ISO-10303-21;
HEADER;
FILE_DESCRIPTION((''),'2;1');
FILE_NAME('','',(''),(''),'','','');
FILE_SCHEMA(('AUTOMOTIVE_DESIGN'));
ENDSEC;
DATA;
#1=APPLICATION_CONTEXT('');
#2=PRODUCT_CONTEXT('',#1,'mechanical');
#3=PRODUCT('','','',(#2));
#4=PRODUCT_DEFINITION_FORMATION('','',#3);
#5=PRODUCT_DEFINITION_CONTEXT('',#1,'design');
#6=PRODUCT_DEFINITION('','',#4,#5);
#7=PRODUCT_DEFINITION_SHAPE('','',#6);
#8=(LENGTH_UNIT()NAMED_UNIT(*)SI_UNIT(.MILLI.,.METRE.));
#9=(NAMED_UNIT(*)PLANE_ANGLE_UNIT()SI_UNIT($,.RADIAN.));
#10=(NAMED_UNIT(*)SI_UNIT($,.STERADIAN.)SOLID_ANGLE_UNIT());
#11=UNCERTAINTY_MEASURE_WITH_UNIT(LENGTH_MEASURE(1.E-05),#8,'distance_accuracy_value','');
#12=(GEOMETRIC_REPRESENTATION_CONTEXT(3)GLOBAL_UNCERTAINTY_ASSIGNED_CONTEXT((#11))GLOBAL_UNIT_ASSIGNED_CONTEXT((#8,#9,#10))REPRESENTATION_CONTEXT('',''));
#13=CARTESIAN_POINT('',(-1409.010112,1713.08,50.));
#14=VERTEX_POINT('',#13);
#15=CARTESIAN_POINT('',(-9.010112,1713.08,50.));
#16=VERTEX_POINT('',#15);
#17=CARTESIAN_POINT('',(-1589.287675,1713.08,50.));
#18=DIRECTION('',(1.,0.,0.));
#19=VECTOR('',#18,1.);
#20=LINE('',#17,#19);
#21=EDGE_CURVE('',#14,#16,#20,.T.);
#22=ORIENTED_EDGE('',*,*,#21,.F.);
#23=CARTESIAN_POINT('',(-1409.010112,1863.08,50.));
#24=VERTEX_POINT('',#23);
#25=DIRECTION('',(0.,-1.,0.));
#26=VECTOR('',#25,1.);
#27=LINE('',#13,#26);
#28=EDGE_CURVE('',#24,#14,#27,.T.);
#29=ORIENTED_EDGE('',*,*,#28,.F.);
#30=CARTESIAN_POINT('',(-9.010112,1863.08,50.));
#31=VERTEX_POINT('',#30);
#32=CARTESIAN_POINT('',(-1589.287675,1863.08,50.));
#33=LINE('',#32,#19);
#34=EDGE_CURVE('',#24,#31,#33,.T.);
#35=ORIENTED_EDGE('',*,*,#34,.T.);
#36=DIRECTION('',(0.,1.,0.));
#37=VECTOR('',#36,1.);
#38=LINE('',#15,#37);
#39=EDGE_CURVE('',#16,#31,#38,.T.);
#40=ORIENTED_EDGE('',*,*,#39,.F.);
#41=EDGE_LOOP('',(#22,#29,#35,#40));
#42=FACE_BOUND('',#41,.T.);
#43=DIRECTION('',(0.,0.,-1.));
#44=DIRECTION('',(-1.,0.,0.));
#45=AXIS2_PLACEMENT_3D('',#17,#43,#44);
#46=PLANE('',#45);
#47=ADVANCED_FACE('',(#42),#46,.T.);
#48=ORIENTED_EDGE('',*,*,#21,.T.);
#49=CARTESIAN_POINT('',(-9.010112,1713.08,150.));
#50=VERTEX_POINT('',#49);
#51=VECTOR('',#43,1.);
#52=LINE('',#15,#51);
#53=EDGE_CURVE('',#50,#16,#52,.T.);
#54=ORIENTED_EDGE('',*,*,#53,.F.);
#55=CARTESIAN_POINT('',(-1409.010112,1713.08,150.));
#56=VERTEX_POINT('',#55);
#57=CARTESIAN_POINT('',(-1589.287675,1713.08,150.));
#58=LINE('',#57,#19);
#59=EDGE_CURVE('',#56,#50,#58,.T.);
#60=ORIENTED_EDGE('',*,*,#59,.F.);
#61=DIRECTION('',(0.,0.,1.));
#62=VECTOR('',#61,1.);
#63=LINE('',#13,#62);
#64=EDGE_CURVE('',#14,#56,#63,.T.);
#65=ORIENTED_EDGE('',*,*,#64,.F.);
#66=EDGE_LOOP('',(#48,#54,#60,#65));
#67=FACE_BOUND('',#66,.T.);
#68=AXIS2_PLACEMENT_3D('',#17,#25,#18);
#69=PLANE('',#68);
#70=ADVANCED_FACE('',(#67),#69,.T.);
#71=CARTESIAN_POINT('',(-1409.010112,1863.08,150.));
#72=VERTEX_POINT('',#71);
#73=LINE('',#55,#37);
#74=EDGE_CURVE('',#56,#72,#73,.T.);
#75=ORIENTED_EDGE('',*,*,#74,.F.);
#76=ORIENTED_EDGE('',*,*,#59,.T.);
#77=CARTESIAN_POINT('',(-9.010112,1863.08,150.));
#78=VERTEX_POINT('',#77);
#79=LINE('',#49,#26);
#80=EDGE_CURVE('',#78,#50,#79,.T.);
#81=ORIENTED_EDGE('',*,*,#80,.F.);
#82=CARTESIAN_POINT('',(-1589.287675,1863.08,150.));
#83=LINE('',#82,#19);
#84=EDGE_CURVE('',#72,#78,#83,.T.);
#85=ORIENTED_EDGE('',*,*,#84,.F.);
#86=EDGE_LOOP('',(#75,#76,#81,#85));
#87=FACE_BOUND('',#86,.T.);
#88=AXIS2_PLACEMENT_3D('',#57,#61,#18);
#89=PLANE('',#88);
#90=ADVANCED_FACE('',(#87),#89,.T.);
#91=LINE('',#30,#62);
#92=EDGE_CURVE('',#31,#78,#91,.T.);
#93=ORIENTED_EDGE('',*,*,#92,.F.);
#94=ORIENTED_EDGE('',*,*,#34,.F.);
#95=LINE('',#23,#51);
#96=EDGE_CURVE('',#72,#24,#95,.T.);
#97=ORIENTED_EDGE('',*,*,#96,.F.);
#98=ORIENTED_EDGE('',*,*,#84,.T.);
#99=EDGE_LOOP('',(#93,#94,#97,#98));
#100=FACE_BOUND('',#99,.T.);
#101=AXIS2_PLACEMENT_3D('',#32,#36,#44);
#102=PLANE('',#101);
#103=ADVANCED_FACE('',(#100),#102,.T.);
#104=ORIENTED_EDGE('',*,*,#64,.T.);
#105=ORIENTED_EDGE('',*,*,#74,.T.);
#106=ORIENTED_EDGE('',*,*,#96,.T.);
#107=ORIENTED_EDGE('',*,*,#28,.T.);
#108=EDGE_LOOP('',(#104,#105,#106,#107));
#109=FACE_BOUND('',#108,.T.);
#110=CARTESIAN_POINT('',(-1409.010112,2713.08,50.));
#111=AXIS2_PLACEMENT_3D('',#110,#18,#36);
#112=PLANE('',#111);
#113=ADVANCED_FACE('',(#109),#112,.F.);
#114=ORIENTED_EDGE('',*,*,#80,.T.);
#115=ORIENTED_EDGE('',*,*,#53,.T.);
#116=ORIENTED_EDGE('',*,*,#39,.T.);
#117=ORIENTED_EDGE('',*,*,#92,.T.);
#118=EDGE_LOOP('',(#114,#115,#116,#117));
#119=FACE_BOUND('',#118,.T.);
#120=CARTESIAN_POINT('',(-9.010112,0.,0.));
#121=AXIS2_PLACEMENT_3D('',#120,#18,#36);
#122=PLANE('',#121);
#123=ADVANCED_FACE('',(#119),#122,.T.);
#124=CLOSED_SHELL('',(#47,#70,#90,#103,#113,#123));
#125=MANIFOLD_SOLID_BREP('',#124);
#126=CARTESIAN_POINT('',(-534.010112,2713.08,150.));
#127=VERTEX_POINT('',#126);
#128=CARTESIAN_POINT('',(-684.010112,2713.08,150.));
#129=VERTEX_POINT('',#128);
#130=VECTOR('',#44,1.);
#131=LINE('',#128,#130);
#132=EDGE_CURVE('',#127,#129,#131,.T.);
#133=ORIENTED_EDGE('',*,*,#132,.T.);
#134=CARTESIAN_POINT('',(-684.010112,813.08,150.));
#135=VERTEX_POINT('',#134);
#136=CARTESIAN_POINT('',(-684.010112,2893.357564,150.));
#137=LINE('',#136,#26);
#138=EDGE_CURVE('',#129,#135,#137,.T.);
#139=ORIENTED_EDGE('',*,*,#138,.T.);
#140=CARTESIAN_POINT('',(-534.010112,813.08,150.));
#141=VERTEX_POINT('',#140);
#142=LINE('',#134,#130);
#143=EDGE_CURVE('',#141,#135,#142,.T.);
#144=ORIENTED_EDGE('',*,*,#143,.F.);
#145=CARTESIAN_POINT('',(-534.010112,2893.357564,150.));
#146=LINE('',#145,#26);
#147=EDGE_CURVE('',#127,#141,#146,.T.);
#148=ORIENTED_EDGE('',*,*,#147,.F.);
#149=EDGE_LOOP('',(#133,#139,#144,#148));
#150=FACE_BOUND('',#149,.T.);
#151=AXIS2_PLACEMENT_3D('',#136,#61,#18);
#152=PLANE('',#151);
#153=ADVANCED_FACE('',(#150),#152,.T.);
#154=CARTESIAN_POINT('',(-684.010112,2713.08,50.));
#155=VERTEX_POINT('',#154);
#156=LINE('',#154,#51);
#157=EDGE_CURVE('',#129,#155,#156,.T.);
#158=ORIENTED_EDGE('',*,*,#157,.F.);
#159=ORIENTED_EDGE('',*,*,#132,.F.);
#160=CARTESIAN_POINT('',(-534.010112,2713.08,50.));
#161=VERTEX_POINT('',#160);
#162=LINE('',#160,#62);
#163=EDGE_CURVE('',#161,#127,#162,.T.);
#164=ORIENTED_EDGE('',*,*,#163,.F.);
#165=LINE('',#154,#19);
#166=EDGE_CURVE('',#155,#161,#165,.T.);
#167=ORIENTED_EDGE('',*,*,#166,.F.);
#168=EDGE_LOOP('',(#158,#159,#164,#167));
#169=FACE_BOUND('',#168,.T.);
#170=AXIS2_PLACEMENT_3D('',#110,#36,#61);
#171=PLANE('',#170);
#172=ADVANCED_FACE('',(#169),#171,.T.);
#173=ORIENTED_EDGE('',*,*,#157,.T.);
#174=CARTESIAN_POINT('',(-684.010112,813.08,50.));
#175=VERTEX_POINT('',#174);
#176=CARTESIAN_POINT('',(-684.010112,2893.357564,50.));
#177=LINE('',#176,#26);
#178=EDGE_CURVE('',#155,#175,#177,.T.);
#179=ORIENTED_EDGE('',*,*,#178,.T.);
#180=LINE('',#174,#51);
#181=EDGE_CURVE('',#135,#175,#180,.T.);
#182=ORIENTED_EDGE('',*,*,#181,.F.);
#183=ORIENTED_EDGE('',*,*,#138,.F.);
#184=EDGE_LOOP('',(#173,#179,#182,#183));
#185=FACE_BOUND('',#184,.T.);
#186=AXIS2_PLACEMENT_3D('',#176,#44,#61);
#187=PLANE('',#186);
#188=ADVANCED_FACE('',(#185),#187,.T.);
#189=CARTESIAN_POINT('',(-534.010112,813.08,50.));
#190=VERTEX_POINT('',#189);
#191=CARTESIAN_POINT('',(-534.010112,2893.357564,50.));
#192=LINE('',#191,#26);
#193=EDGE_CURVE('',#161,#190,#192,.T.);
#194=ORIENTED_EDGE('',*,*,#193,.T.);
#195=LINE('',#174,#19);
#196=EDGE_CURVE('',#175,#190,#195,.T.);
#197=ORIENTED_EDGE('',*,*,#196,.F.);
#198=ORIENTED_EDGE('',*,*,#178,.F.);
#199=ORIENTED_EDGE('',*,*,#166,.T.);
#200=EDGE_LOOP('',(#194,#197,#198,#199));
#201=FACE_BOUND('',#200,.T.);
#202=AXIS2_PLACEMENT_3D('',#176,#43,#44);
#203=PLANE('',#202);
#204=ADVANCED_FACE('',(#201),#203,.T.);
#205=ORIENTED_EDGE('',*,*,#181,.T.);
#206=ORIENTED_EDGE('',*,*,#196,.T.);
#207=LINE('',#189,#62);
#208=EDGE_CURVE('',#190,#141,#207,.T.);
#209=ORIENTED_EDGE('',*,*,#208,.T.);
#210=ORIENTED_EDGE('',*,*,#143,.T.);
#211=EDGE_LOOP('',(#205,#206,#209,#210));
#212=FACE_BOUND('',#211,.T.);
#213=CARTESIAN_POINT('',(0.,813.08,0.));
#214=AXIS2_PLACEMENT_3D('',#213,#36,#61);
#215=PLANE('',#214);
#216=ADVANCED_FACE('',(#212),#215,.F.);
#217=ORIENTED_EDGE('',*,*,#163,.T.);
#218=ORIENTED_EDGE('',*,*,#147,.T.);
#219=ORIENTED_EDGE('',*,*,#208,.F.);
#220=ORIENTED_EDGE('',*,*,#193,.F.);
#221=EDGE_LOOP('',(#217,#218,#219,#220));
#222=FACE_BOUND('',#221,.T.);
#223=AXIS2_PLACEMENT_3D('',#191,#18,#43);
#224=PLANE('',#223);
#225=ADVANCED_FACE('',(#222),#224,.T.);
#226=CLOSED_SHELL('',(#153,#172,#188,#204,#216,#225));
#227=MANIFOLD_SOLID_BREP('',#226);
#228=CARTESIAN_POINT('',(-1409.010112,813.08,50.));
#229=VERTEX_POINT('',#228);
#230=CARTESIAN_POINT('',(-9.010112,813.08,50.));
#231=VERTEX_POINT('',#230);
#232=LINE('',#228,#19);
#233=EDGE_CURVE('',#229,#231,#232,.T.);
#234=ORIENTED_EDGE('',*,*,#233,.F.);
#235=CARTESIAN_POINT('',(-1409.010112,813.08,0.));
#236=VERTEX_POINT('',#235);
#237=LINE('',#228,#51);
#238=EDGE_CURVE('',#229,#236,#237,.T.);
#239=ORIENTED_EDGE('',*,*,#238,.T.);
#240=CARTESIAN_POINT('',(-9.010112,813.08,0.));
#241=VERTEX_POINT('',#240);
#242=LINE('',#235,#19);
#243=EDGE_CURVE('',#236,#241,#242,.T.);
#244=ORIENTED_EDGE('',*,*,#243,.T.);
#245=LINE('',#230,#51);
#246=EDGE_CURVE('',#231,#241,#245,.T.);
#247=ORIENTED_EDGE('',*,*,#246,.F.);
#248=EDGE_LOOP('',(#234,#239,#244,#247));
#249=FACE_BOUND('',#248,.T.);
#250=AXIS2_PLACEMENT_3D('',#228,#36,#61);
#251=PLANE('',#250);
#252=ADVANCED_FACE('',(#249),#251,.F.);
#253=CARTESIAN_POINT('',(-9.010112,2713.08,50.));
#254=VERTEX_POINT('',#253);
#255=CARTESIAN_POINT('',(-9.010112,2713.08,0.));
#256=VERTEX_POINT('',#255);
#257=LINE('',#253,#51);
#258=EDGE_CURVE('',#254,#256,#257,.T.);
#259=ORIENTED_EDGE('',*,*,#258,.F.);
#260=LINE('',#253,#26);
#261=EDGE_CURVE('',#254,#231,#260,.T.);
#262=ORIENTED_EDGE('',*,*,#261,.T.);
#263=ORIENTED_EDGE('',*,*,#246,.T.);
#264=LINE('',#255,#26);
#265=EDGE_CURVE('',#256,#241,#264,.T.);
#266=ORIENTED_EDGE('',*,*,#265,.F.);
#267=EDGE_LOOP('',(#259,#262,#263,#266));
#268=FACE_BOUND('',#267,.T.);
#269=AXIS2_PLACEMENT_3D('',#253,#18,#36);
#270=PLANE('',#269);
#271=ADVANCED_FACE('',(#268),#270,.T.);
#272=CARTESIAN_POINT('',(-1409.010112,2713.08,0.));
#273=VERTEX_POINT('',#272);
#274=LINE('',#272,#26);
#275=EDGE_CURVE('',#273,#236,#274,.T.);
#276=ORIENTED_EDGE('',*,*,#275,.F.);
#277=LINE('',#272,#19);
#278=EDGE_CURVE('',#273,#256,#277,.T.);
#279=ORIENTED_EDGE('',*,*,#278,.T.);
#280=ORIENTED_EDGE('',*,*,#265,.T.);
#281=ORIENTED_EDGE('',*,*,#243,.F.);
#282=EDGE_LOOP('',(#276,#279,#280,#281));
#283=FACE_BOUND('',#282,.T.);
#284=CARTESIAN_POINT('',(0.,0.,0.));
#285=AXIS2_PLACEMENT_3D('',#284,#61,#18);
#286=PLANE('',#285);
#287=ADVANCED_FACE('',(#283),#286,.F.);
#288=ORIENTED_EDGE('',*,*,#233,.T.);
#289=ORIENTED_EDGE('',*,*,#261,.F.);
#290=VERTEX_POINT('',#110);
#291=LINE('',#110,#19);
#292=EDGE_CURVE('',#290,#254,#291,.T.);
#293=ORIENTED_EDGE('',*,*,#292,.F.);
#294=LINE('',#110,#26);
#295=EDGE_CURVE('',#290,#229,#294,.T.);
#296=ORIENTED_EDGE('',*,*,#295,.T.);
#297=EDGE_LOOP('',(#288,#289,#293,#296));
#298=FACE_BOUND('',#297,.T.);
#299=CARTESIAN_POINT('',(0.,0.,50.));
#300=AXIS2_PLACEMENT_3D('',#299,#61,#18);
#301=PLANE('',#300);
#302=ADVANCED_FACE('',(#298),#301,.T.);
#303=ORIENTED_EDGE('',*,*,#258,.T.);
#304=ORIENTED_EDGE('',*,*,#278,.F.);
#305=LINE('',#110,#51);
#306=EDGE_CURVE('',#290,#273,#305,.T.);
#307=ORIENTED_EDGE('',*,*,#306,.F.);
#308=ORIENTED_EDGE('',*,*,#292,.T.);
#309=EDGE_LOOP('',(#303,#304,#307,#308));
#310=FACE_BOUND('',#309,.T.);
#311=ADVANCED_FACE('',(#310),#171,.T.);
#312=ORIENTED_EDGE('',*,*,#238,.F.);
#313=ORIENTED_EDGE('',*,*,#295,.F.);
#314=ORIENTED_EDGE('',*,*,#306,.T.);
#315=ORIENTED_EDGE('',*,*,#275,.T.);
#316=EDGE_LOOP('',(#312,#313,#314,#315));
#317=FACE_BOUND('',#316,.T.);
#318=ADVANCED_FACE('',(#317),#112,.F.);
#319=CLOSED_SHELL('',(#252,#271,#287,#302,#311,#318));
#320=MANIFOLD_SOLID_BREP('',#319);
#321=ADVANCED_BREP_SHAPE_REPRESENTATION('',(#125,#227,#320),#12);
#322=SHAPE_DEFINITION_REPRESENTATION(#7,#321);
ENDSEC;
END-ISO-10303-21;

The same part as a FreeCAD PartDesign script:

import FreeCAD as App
import Part
import Sketcher
Q = App.Units.Quantity

doc = App.newDocument("Part")
body = doc.addObject("PartDesign::Body", "Body")

# Sketch on XY plane
sketch1 = body.newObject("Sketcher::SketchObject", "Sketch")
sketch1.AttachmentSupport = (doc.getObject("XY_Plane"), [""])
sketch1.MapMode = "FlatFace"
sketch1.addGeometry(Part.LineSegment(App.Vector(-1409, 2713, 0), App.Vector(-1409, 813, 0)), False)
sketch1.addGeometry(Part.LineSegment(App.Vector(-1409, 813, 0), App.Vector(-9, 813, 0)), False)
sketch1.addGeometry(Part.LineSegment(App.Vector(-9, 813, 0), App.Vector(-9, 2713, 0)), False)
sketch1.addGeometry(Part.LineSegment(App.Vector(-9, 2713, 0), App.Vector(-1409, 2713, 0)), False)
sketch1.addConstraint(Sketcher.Constraint("Coincident", 0, 2, 1, 1))
sketch1.addConstraint(Sketcher.Constraint("Coincident", 1, 2, 2, 1))
sketch1.addConstraint(Sketcher.Constraint("Coincident", 2, 2, 3, 1))
sketch1.addConstraint(Sketcher.Constraint("Coincident", 3, 2, 0, 1))
sketch1.addConstraint(Sketcher.Constraint("Vertical", 0))
sketch1.addConstraint(Sketcher.Constraint("Horizontal", 1))
sketch1.addConstraint(Sketcher.Constraint("Vertical", 2))
sketch1.addConstraint(Sketcher.Constraint("Horizontal", 3))
sketch1.addConstraint(Sketcher.Constraint("DistanceX", 1, 1, 1, 2, Q("1400 mm")))
sketch1.addConstraint(Sketcher.Constraint("DistanceY", 0, 2, 0, 1, Q("1900 mm")))
sketch1.addConstraint(Sketcher.Constraint("DistanceY", -1, 1, 0, 2, Q("813.08 mm")))
sketch1.addConstraint(Sketcher.Constraint("DistanceX", 0, 2, -1, 1, Q("1409.010112 mm")))
pad1 = body.newObject("PartDesign::Pad", "Pad")
pad1.Profile = sketch1
pad1.Length = 50
body2 = doc.addObject("PartDesign::Body", "Body001")

# Sketch on YZ plane
sketch2 = body2.newObject("Sketcher::SketchObject", "Sketch001")
sketch2.AttachmentSupport = (doc.getObject("YZ_Plane001"), [""])
sketch2.MapMode = "FlatFace"
sketch2.AttachmentOffset = App.Placement(App.Vector(0, 0, -9.010112), App.Rotation())
sketch2.addGeometry(Part.LineSegment(App.Vector(1863, 150, 0), App.Vector(1713, 150, 0)), False)
sketch2.addGeometry(Part.LineSegment(App.Vector(1713, 150, 0), App.Vector(1713, 50, 0)), False)
sketch2.addGeometry(Part.LineSegment(App.Vector(1713, 50, 0), App.Vector(1863, 50, 0)), False)
sketch2.addGeometry(Part.LineSegment(App.Vector(1863, 50, 0), App.Vector(1863, 150, 0)), False)
sketch2.addConstraint(Sketcher.Constraint("Coincident", 0, 2, 1, 1))
sketch2.addConstraint(Sketcher.Constraint("Coincident", 1, 2, 2, 1))
sketch2.addConstraint(Sketcher.Constraint("Coincident", 2, 2, 3, 1))
sketch2.addConstraint(Sketcher.Constraint("Coincident", 3, 2, 0, 1))
sketch2.addConstraint(Sketcher.Constraint("Horizontal", 0))
sketch2.addConstraint(Sketcher.Constraint("Vertical", 1))
sketch2.addConstraint(Sketcher.Constraint("Horizontal", 2))
sketch2.addConstraint(Sketcher.Constraint("Vertical", 3))
sketch2.addConstraint(Sketcher.Constraint("DistanceX", 0, 2, 0, 1, Q("150 mm")))
sketch2.addConstraint(Sketcher.Constraint("DistanceY", 1, 2, 1, 1, Q("100 mm")))
sketch2.addConstraint(Sketcher.Constraint("DistanceY", -1, 1, 0, 2, Q("150 mm")))
sketch2.addConstraint(Sketcher.Constraint("DistanceX", -1, 1, 0, 2, Q("1713.08 mm")))
pad2 = body2.newObject("PartDesign::Pad", "Pad001")
pad2.Profile = sketch2
pad2.Length = 1400
pad2.Reversed = True
body3 = doc.addObject("PartDesign::Body", "Body002")

# Sketch on XZ plane
sketch3 = body3.newObject("Sketcher::SketchObject", "Sketch002")
sketch3.AttachmentSupport = (doc.getObject("XZ_Plane002"), [""])
sketch3.MapMode = "FlatFace"
sketch3.AttachmentOffset = App.Placement(App.Vector(0, 0, -813.08), App.Rotation())
sketch3.addGeometry(Part.LineSegment(App.Vector(-684, 150, 0), App.Vector(-684, 50, 0)), False)
sketch3.addGeometry(Part.LineSegment(App.Vector(-684, 50, 0), App.Vector(-534, 50, 0)), False)
sketch3.addGeometry(Part.LineSegment(App.Vector(-534, 50, 0), App.Vector(-534, 150, 0)), False)
sketch3.addGeometry(Part.LineSegment(App.Vector(-534, 150, 0), App.Vector(-684, 150, 0)), False)
sketch3.addConstraint(Sketcher.Constraint("Coincident", 0, 2, 1, 1))
sketch3.addConstraint(Sketcher.Constraint("Coincident", 1, 2, 2, 1))
sketch3.addConstraint(Sketcher.Constraint("Coincident", 2, 2, 3, 1))
sketch3.addConstraint(Sketcher.Constraint("Coincident", 3, 2, 0, 1))
sketch3.addConstraint(Sketcher.Constraint("Vertical", 0))
sketch3.addConstraint(Sketcher.Constraint("Horizontal", 1))
sketch3.addConstraint(Sketcher.Constraint("Vertical", 2))
sketch3.addConstraint(Sketcher.Constraint("Horizontal", 3))
sketch3.addConstraint(Sketcher.Constraint("DistanceX", 1, 1, 1, 2, Q("150 mm")))
sketch3.addConstraint(Sketcher.Constraint("DistanceY", 0, 2, 0, 1, Q("100 mm")))
sketch3.addConstraint(Sketcher.Constraint("DistanceY", -1, 1, 0, 2, Q("50 mm")))
sketch3.addConstraint(Sketcher.Constraint("DistanceX", 0, 2, -1, 1, Q("684.010112 mm")))
pad3 = body3.newObject("PartDesign::Pad", "Pad002")
pad3.Profile = sketch3
pad3.Length = 1900
pad3.Reversed = True

doc.recompute()
